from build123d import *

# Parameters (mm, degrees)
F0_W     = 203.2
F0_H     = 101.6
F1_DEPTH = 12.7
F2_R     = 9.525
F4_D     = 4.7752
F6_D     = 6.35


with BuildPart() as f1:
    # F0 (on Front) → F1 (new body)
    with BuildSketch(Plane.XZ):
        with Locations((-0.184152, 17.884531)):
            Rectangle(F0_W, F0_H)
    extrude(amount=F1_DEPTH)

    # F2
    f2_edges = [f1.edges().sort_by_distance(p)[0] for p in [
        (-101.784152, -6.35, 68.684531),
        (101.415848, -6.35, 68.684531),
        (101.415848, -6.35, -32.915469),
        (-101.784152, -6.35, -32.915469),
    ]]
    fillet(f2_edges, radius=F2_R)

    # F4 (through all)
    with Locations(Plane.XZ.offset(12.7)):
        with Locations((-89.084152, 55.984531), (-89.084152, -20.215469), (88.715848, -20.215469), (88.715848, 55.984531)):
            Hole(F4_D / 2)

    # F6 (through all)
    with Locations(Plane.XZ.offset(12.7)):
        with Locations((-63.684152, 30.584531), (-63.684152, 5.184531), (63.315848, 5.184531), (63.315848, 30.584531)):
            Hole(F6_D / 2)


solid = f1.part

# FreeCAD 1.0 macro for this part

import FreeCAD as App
import Part
import Sketcher
Q = App.Units.Quantity


def edges_at(feature, points):
    """Names of the edges that pass closest to the given points."""
    edges = feature.Shape.Edges
    near = lambda p: min(range(len(edges)), key=lambda i: edges[i].distToShape(Part.Vertex(*p))[0])
    return sorted({f"Edge{near(p) + 1}" for p in points})

doc = App.newDocument("Part")
body = doc.addObject("PartDesign::Body", "Body")

# Sketch on XZ plane
sketch1 = body.newObject("Sketcher::SketchObject", "Sketch")
sketch1.AttachmentSupport = (doc.getObject("XZ_Plane"), [""])
sketch1.MapMode = "FlatFace"
sketch1.addGeometry([
    Part.LineSegment(App.Vector(-102, 69, 0), App.Vector(-102, -33, 0)),
    Part.LineSegment(App.Vector(-102, -33, 0), App.Vector(101, -33, 0)),
    Part.LineSegment(App.Vector(101, -33, 0), App.Vector(101, 69, 0)),
    Part.LineSegment(App.Vector(101, 69, 0), App.Vector(-102, 69, 0)),
], False)
sketch1.addConstraint([
    Sketcher.Constraint("Coincident", 0, 2, 1, 1),
    Sketcher.Constraint("Coincident", 1, 2, 2, 1),
    Sketcher.Constraint("Coincident", 2, 2, 3, 1),
    Sketcher.Constraint("Coincident", 3, 2, 0, 1),
    Sketcher.Constraint("Vertical", 0),
    Sketcher.Constraint("Horizontal", 1),
    Sketcher.Constraint("Vertical", 2),
    Sketcher.Constraint("Horizontal", 3),
    Sketcher.Constraint("DistanceX", 1, 1, 1, 2, Q("8 in")),
    Sketcher.Constraint("DistanceY", 0, 2, 0, 1, Q("4 in")),
    Sketcher.Constraint("DistanceY", 0, 2, -1, 1, 32.915469),
    Sketcher.Constraint("DistanceX", 0, 2, -1, 1, 101.784152),
])
pad1 = body.newObject("PartDesign::Pad", "Pad")
pad1.Profile = sketch1
pad1.Length = Q("0.5 in")
doc.recompute()

fillet = body.newObject("PartDesign::Fillet", "Fillet")
fillet.Base = (pad1, edges_at(pad1, [
    (-101.784, -6.35, 68.685),
    (101.416, -6.35, 68.685),
    (101.416, -6.35, -32.915),
    (-101.784, -6.35, -32.915),
]))
fillet.Radius = Q("0.375 in")

# Sketch on XZ plane
sketch2 = body.newObject("Sketcher::SketchObject", "Sketch001")
sketch2.AttachmentSupport = (doc.getObject("XZ_Plane"), [""])
sketch2.MapMode = "FlatFace"
sketch2.AttachmentOffset = App.Placement(App.Vector(0, 0, 0.5 * 25.4), App.Rotation())
sketch2.addGeometry([
    Part.Circle(App.Vector(-89.1, 56, 0), App.Vector(0, 0, 1), 2.4),
    Part.Circle(App.Vector(-89.1, -20.2, 0), App.Vector(0, 0, 1), 2.4),
    Part.Circle(App.Vector(88.7, -20.2, 0), App.Vector(0, 0, 1), 2.4),
    Part.Circle(App.Vector(88.7, 56, 0), App.Vector(0, 0, 1), 2.4),
], False)
sketch2.addConstraint([
    Sketcher.Constraint("Equal", 0, 1),
    Sketcher.Constraint("Equal", 1, 2),
    Sketcher.Constraint("Equal", 2, 3),
    Sketcher.Constraint("Horizontal", 1, 3, 2, 3),
    Sketcher.Constraint("Horizontal", 0, 3, 3, 3),
    Sketcher.Constraint("Vertical", 0, 3, 1, 3),
    Sketcher.Constraint("Vertical", 2, 3, 3, 3),
    Sketcher.Constraint("Diameter", 0, Q("0.188 in")),
    Sketcher.Constraint("DistanceY", 1, 3, 0, 3, Q("3 in")),
    Sketcher.Constraint("DistanceX", 1, 3, 2, 3, Q("7 in")),
    Sketcher.Constraint("DistanceY", -1, 1, 0, 3, 55.984531),
    Sketcher.Constraint("DistanceX", 0, 3, -1, 1, 89.084152),
])
doc.recompute()
hole = body.newObject("PartDesign::Hole", "Hole")
hole.Profile = sketch2
hole.ThreadType = "None"
hole.Diameter = Q("0.188 in")
hole.DepthType = "ThroughAll"

# Sketch on XZ plane
sketch3 = body.newObject("Sketcher::SketchObject", "Sketch002")
sketch3.AttachmentSupport = (doc.getObject("XZ_Plane"), [""])
sketch3.MapMode = "FlatFace"
sketch3.AttachmentOffset = App.Placement(App.Vector(0, 0, 0.5 * 25.4), App.Rotation())
sketch3.addGeometry([
    Part.Circle(App.Vector(-63.7, 30.6, 0), App.Vector(0, 0, 1), 3.2),
    Part.Circle(App.Vector(-63.7, 5.2, 0), App.Vector(0, 0, 1), 3.2),
    Part.Circle(App.Vector(63.3, 5.2, 0), App.Vector(0, 0, 1), 3.2),
    Part.Circle(App.Vector(63.3, 30.6, 0), App.Vector(0, 0, 1), 3.2),
], False)
sketch3.addConstraint([
    Sketcher.Constraint("Equal", 0, 1),
    Sketcher.Constraint("Equal", 1, 2),
    Sketcher.Constraint("Equal", 2, 3),
    Sketcher.Constraint("Horizontal", 1, 3, 2, 3),
    Sketcher.Constraint("Horizontal", 0, 3, 3, 3),
    Sketcher.Constraint("Vertical", 0, 3, 1, 3),
    Sketcher.Constraint("Vertical", 2, 3, 3, 3),
    Sketcher.Constraint("Diameter", 0, Q("0.25 in")),
    Sketcher.Constraint("DistanceY", 1, 3, 0, 3, Q("1 in")),
    Sketcher.Constraint("DistanceX", 1, 3, 2, 3, Q("5 in")),
    Sketcher.Constraint("DistanceX", 0, 3, -1, 1, 63.684152),
    Sketcher.Constraint("DistanceY", -1, 1, 0, 3, 30.584531),
])
doc.recompute()
hole2 = body.newObject("PartDesign::Hole", "Hole001")
hole2.Profile = sketch3
hole2.ThreadType = "None"
hole2.Diameter = Q("0.25 in")
hole2.DepthType = "ThroughAll"

doc.recompute()
